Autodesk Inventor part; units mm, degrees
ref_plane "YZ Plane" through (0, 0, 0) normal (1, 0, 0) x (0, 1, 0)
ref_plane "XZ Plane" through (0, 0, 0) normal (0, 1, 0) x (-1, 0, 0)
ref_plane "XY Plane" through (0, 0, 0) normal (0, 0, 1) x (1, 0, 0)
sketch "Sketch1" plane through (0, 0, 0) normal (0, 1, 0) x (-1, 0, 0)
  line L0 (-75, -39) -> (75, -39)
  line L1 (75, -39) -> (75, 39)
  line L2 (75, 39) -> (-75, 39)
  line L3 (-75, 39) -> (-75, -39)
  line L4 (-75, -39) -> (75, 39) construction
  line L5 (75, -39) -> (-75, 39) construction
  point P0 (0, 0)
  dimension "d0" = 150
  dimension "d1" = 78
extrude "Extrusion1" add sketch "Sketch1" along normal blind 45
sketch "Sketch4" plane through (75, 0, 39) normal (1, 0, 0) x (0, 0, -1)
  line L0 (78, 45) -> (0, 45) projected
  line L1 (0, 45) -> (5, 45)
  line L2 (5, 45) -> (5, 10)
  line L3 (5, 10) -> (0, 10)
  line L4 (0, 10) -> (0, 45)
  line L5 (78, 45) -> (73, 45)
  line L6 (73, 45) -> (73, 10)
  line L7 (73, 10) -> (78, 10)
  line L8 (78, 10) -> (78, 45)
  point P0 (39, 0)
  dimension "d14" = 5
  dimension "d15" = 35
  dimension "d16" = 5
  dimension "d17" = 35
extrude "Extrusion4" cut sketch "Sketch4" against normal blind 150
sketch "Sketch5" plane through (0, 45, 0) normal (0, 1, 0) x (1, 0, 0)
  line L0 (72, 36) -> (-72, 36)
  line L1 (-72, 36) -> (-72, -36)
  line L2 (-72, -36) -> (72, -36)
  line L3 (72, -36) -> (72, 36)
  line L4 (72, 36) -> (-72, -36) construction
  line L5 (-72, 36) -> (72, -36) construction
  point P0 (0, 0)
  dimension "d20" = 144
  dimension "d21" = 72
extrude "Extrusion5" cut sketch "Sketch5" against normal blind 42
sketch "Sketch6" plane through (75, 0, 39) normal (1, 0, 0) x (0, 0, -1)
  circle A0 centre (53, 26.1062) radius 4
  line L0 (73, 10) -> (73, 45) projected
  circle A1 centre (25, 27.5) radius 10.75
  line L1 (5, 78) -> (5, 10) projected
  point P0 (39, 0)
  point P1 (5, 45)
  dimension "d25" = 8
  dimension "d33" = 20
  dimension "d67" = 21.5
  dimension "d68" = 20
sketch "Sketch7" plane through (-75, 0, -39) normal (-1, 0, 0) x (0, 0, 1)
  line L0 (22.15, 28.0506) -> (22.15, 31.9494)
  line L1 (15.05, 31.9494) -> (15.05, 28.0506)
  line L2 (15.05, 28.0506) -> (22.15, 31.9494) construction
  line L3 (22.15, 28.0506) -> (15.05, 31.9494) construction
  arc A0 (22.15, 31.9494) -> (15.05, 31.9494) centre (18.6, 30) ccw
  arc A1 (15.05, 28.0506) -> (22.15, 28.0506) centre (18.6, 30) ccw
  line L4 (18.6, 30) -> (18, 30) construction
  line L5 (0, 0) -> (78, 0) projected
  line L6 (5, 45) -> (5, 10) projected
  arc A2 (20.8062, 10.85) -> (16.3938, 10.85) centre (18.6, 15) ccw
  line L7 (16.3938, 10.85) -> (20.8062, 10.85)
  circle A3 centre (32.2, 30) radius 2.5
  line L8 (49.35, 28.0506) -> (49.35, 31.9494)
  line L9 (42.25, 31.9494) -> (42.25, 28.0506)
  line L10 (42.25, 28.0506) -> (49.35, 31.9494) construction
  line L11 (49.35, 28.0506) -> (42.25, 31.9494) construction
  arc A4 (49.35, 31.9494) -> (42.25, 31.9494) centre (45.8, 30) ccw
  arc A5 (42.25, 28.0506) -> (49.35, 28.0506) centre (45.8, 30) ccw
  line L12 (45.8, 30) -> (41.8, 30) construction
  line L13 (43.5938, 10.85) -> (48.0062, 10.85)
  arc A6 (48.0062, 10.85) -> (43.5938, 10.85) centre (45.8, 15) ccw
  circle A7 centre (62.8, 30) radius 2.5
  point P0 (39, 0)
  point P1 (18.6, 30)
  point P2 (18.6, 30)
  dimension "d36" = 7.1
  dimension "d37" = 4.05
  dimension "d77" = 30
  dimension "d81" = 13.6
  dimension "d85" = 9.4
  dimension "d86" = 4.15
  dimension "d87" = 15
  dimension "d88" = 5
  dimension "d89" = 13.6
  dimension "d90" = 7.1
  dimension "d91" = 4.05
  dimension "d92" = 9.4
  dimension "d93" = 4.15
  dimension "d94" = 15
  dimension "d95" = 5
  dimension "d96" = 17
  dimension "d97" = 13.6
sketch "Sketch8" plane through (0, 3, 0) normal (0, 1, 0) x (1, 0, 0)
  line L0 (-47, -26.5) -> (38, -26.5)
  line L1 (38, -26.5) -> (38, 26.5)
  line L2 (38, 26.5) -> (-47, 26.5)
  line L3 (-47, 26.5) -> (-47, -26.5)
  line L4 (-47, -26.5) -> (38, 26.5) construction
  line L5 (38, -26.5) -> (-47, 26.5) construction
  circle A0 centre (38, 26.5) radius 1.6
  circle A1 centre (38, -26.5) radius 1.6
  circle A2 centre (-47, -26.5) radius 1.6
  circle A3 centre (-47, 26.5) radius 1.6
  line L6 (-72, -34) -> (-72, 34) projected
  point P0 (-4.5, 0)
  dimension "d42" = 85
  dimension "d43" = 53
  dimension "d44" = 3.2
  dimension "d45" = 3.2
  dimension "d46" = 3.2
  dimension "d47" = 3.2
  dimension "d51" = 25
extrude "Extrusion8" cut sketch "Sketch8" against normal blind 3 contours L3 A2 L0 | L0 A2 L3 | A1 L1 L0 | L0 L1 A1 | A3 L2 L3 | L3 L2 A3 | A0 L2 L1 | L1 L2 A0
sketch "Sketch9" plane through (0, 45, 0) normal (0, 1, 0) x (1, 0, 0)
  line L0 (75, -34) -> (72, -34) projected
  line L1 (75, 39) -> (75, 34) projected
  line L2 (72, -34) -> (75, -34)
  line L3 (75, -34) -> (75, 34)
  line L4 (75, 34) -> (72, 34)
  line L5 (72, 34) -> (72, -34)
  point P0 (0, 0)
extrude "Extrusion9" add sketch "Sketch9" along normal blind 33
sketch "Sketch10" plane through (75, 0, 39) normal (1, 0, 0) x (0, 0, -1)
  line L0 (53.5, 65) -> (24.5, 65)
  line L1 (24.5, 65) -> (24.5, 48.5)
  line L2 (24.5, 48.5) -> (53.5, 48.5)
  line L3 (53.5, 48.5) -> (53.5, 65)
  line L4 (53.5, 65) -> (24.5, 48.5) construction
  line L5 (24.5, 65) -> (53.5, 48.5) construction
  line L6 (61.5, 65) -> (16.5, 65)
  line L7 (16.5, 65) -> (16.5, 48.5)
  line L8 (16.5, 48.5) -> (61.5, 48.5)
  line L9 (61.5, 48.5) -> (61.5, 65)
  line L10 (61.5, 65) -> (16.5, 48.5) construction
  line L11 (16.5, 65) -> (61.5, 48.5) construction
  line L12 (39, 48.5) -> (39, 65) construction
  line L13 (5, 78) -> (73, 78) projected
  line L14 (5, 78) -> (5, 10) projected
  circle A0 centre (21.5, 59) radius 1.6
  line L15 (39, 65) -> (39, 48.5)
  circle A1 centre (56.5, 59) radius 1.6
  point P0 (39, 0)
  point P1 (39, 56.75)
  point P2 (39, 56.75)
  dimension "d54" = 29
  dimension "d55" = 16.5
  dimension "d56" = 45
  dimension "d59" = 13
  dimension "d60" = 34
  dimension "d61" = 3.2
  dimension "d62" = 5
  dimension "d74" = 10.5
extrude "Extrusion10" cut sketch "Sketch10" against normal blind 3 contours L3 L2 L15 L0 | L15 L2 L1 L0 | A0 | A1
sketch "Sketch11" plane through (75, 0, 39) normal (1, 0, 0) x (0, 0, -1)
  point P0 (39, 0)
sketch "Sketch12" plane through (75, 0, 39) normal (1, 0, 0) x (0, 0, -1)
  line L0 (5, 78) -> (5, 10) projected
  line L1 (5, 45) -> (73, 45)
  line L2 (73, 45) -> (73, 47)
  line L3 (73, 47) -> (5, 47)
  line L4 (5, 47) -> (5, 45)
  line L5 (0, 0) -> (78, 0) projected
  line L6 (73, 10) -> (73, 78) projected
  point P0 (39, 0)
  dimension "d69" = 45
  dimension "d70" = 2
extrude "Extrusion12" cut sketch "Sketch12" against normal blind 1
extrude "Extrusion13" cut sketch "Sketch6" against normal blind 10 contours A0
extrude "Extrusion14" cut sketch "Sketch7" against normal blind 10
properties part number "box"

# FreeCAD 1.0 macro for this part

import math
import FreeCAD as App
import Part
import Sketcher


def add_polygon(sketch, points):
    """Adds a closed chain of lines whose ends are joined by coincident constraints."""
    first, n = sketch.GeometryCount, len(points)
    for a, b in zip(points, points[1:] + points[:1]):
        sketch.addGeometry(Part.LineSegment(App.Vector(*a, 0), App.Vector(*b, 0)), False)
    for i in range(n):
        sketch.addConstraint(Sketcher.Constraint("Coincident", first + i, 2, first + (i + 1) % n, 1))

doc = App.newDocument("Part")
body = doc.addObject("PartDesign::Body", "Body")

sketch1 = body.newObject("Sketcher::SketchObject", "Sketch")
sketch1.AttachmentSupport = (doc.getObject("XZ_Plane"), [""])
sketch1.MapMode = "FlatFace"
add_polygon(sketch1, [(75, 39), (75, -39), (-75, -39), (-75, 39)])
sketch1.addConstraint(Sketcher.Constraint("Vertical", 0))
sketch1.addConstraint(Sketcher.Constraint("Horizontal", 1))
sketch1.addConstraint(Sketcher.Constraint("Vertical", 2))
sketch1.addConstraint(Sketcher.Constraint("Horizontal", 3))
sketch1.addConstraint(Sketcher.Constraint("Symmetric", 0, 2, 2, 2, -1, 1))
sketch1.addConstraint(Sketcher.Constraint("DistanceX", 1, 2, 1, 1, 150.0))
sketch1.addConstraint(Sketcher.Constraint("DistanceY", 0, 2, 0, 1, 78.0))
pad1 = body.newObject("PartDesign::Pad", "Pad")
pad1.Profile = sketch1
pad1.Length = 45
pad1.Reversed = True

sketch2 = body.newObject("Sketcher::SketchObject", "Sketch001")
sketch2.AttachmentSupport = (doc.getObject("YZ_Plane"), [""])
sketch2.MapMode = "FlatFace"
sketch2.AttachmentOffset = App.Placement(App.Vector(0, 0, 75), App.Rotation())
add_polygon(sketch2, [(10, -39), (45, -39), (45, -34), (10, -34)])
add_polygon(sketch2, [(10, 34), (45, 34), (45, 39), (10, 39)])
sketch2.addConstraint(Sketcher.Constraint("Horizontal", 0))
sketch2.addConstraint(Sketcher.Constraint("Vertical", 1))
sketch2.addConstraint(Sketcher.Constraint("Horizontal", 2))
sketch2.addConstraint(Sketcher.Constraint("Vertical", 3))
sketch2.addConstraint(Sketcher.Constraint("Horizontal", 4))
sketch2.addConstraint(Sketcher.Constraint("Vertical", 5))
sketch2.addConstraint(Sketcher.Constraint("Horizontal", 6))
sketch2.addConstraint(Sketcher.Constraint("Vertical", 7))
sketch2.addConstraint(Sketcher.Constraint("Symmetric", 1, 2, 4, 2, -1))
sketch2.addConstraint(Sketcher.Constraint("Symmetric", 3, 2, 6, 2, -1))
sketch2.addConstraint(Sketcher.Constraint("DistanceX", 0, 1, 0, 2, 35.0))
sketch2.addConstraint(Sketcher.Constraint("DistanceY", 1, 1, 1, 2, 5.0))
sketch2.addConstraint(Sketcher.Constraint("DistanceX", -1, 1, 0, 2, 45.0))
sketch2.addConstraint(Sketcher.Constraint("DistanceY", 0, 2, -1, 1, 39.0))
pocket1 = body.newObject("PartDesign::Pocket", "Pocket")
pocket1.Profile = sketch2
pocket1.Length = 150

sketch3 = body.newObject("Sketcher::SketchObject", "Sketch002")
sketch3.AttachmentSupport = (doc.getObject("XZ_Plane"), [""])
sketch3.MapMode = "FlatFace"
sketch3.AttachmentOffset = App.Placement(App.Vector(0, 0, -45), App.Rotation())
add_polygon(sketch3, [(72, 36), (72, -36), (-72, -36), (-72, 36)])
sketch3.addConstraint(Sketcher.Constraint("Vertical", 0))
sketch3.addConstraint(Sketcher.Constraint("Horizontal", 1))
sketch3.addConstraint(Sketcher.Constraint("Vertical", 2))
sketch3.addConstraint(Sketcher.Constraint("Horizontal", 3))
sketch3.addConstraint(Sketcher.Constraint("Symmetric", 0, 2, 2, 2, -1, 1))
sketch3.addConstraint(Sketcher.Constraint("DistanceX", 1, 2, 1, 1, 144.0))
sketch3.addConstraint(Sketcher.Constraint("DistanceY", 0, 2, 0, 1, 72.0))
pocket2 = body.newObject("PartDesign::Pocket", "Pocket001")
pocket2.Profile = sketch3
pocket2.Length = 42
pocket2.Reversed = True

sketch4 = body.newObject("Sketcher::SketchObject", "Sketch003")
sketch4.AttachmentSupport = (doc.getObject("XZ_Plane"), [""])
sketch4.MapMode = "FlatFace"
sketch4.AttachmentOffset = App.Placement(App.Vector(0, 0, -3), App.Rotation())
sketch4.addGeometry(Part.Circle(App.Vector(-47, 26.5, 0), App.Vector(0, 0, 1), 1.6), False)
sketch4.addGeometry(Part.Circle(App.Vector(38, 26.5, 0), App.Vector(0, 0, 1), 1.6), False)
sketch4.addGeometry(Part.Circle(App.Vector(-47, -26.5, 0), App.Vector(0, 0, 1), 1.6), False)
sketch4.addGeometry(Part.Circle(App.Vector(38, -26.5, 0), App.Vector(0, 0, 1), 1.6), False)
sketch4.addConstraint(Sketcher.Constraint("Equal", 0, 1))
sketch4.addConstraint(Sketcher.Constraint("Equal", 1, 2))
sketch4.addConstraint(Sketcher.Constraint("Equal", 2, 3))
sketch4.addConstraint(Sketcher.Constraint("Symmetric", 0, 3, 2, 3, -1))
sketch4.addConstraint(Sketcher.Constraint("Symmetric", 1, 3, 3, 3, -1))
sketch4.addConstraint(Sketcher.Constraint("Horizontal", 0, 3, 1, 3))
sketch4.addConstraint(Sketcher.Constraint("Diameter", 0, 3.2))
sketch4.addConstraint(Sketcher.Constraint("DistanceX", 0, 3, 1, 3, 85.0))
sketch4.addConstraint(Sketcher.Constraint("DistanceY", 2, 3, 0, 3, 53.0))
sketch4.addConstraint(Sketcher.Constraint("DistanceX", 0, 3, -1, 1, 47.0))
pocket3 = body.newObject("PartDesign::Pocket", "Pocket002")
pocket3.Profile = sketch4
pocket3.Length = 3
pocket3.Reversed = True

sketch5 = body.newObject("Sketcher::SketchObject", "Sketch004")
sketch5.AttachmentSupport = (doc.getObject("XZ_Plane"), [""])
sketch5.MapMode = "FlatFace"
sketch5.AttachmentOffset = App.Placement(App.Vector(0, 0, -45), App.Rotation())
add_polygon(sketch5, [(72, 34), (75, 34), (75, -34), (72, -34)])
sketch5.addConstraint(Sketcher.Constraint("Horizontal", 0))
sketch5.addConstraint(Sketcher.Constraint("Vertical", 1))
sketch5.addConstraint(Sketcher.Constraint("Horizontal", 2))
sketch5.addConstraint(Sketcher.Constraint("Vertical", 3))
sketch5.addConstraint(Sketcher.Constraint("DistanceX", 0, 1, 0, 2, 3.0))
sketch5.addConstraint(Sketcher.Constraint("DistanceY", 1, 2, 1, 1, 68.0))
sketch5.addConstraint(Sketcher.Constraint("DistanceX", -1, 1, 0, 2, 75.0))
sketch5.addConstraint(Sketcher.Constraint("DistanceY", -1, 1, 0, 2, 34.0))
pad2 = body.newObject("PartDesign::Pad", "Pad001")
pad2.Profile = sketch5
pad2.Length = 33
pad2.Reversed = True

sketch6 = body.newObject("Sketcher::SketchObject", "Sketch005")
sketch6.AttachmentSupport = (doc.getObject("YZ_Plane"), [""])
sketch6.MapMode = "FlatFace"
sketch6.AttachmentOffset = App.Placement(App.Vector(0, 0, 75), App.Rotation())
add_polygon(sketch6, [(48.5, -14.5), (65, -14.5), (65, 14.5), (48.5, 14.5)])
sketch6.addGeometry(Part.Circle(App.Vector(59, 17.5, 0), App.Vector(0, 0, 1), 1.6), False)
sketch6.addGeometry(Part.Circle(App.Vector(59, -17.5, 0), App.Vector(0, 0, 1), 1.6), False)
sketch6.addConstraint(Sketcher.Constraint("Horizontal", 0))
sketch6.addConstraint(Sketcher.Constraint("Vertical", 1))
sketch6.addConstraint(Sketcher.Constraint("Horizontal", 2))
sketch6.addConstraint(Sketcher.Constraint("Vertical", 3))
sketch6.addConstraint(Sketcher.Constraint("Equal", 4, 5))
sketch6.addConstraint(Sketcher.Constraint("Symmetric", 4, 3, 5, 3, -1))
sketch6.addConstraint(Sketcher.Constraint("Diameter", 4, 3.2))
sketch6.addConstraint(Sketcher.Constraint("DistanceY", 1, 1, 1, 2, 29.0))
sketch6.addConstraint(Sketcher.Constraint("DistanceX", 0, 1, 0, 2, 16.5))
sketch6.addConstraint(Sketcher.Constraint("DistanceX", 2, 2, 4, 3, 10.5))
sketch6.addConstraint(Sketcher.Constraint("DistanceX", -1, 1, 4, 3, 59.0))
sketch6.addConstraint(Sketcher.Constraint("DistanceY", 5, 3, 4, 3, 35.0))
sketch6.addConstraint(Sketcher.Constraint("DistanceY", 5, 3, 0, 2, 3.0))
pocket4 = body.newObject("PartDesign::Pocket", "Pocket003")
pocket4.Profile = sketch6
pocket4.Length = 3

sketch7 = body.newObject("Sketcher::SketchObject", "Sketch006")
sketch7.AttachmentSupport = (doc.getObject("YZ_Plane"), [""])
sketch7.MapMode = "FlatFace"
sketch7.AttachmentOffset = App.Placement(App.Vector(0, 0, 75), App.Rotation())
add_polygon(sketch7, [(47, -34), (47, 34), (45, 34), (45, -34)])
sketch7.addConstraint(Sketcher.Constraint("Vertical", 0))
sketch7.addConstraint(Sketcher.Constraint("Horizontal", 1))
sketch7.addConstraint(Sketcher.Constraint("Vertical", 2))
sketch7.addConstraint(Sketcher.Constraint("Horizontal", 3))
sketch7.addConstraint(Sketcher.Constraint("DistanceX", 1, 2, 1, 1, 2.0))
sketch7.addConstraint(Sketcher.Constraint("DistanceX", -1, 1, 1, 2, 45.0))
sketch7.addConstraint(Sketcher.Constraint("DistanceY", 0, 1, 0, 2, 68.0))
sketch7.addConstraint(Sketcher.Constraint("DistanceY", -1, 1, 0, 2, 34.0))
pocket5 = body.newObject("PartDesign::Pocket", "Pocket004")
pocket5.Profile = sketch7
pocket5.Length = 1

sketch8 = body.newObject("Sketcher::SketchObject", "Sketch007")
sketch8.AttachmentSupport = (doc.getObject("YZ_Plane"), [""])
sketch8.MapMode = "FlatFace"
sketch8.AttachmentOffset = App.Placement(App.Vector(0, 0, 75), App.Rotation())
sketch8.addGeometry(Part.Circle(App.Vector(26.1, -14, 0), App.Vector(0, 0, 1), 4), False)
sketch8.addConstraint(Sketcher.Constraint("Diameter", 0, 8.0))
sketch8.addConstraint(Sketcher.Constraint("DistanceY", 0, 3, -1, 1, 14.0))
sketch8.addConstraint(Sketcher.Constraint("DistanceX", -1, 1, 0, 3, 26.1062))
pocket6 = body.newObject("PartDesign::Pocket", "Pocket005")
pocket6.Profile = sketch8
pocket6.Length = 10

sketch9 = body.newObject("Sketcher::SketchObject", "Sketch008")
sketch9.AttachmentSupport = (doc.getObject("YZ_Plane"), [""])
sketch9.MapMode = "FlatFace"
sketch9.AttachmentOffset = App.Placement(App.Vector(0, 0, -75), App.Rotation())
sketch9.addGeometry(Part.ArcOfCircle(Part.Circle(App.Vector(30, -20.4, 0), App.Vector(0, 0, 1), 4.1), math.radians(119), math.radians(241)), False)
sketch9.addGeometry(Part.LineSegment(App.Vector(28.1, -16.9, 0), App.Vector(31.9, -16.9, 0)), False)
sketch9.addGeometry(Part.ArcOfCircle(Part.Circle(App.Vector(30, -20.4, 0), App.Vector(0, 0, 1), 4.1), math.radians(-61), math.radians(61)), False)
sketch9.addGeometry(Part.LineSegment(App.Vector(31.9, -23.9, 0), App.Vector(28.1, -23.9, 0)), False)
sketch9.addGeometry(Part.LineSegment(App.Vector(10.8, -22.6, 0), App.Vector(10.8, -18.2, 0)), False)
sketch9.addGeometry(Part.ArcOfCircle(Part.Circle(App.Vector(15, -20.4, 0), App.Vector(0, 0, 1), 4.7), math.radians(-152), math.radians(152)), False)
sketch9.addGeometry(Part.Circle(App.Vector(30, -6.8, 0), App.Vector(0, 0, 1), 2.5), False)
sketch9.addGeometry(Part.ArcOfCircle(Part.Circle(App.Vector(30, 6.8, 0), App.Vector(0, 0, 1), 4.1), math.radians(119), math.radians(241)), False)
sketch9.addGeometry(Part.LineSegment(App.Vector(28.1, 10.3, 0), App.Vector(31.9, 10.3, 0)), False)
sketch9.addGeometry(Part.ArcOfCircle(Part.Circle(App.Vector(30, 6.8, 0), App.Vector(0, 0, 1), 4.1), math.radians(-61), math.radians(61)), False)
sketch9.addGeometry(Part.LineSegment(App.Vector(31.9, 3.2, 0), App.Vector(28.1, 3.2, 0)), False)
sketch9.addGeometry(Part.ArcOfCircle(Part.Circle(App.Vector(15, 6.8, 0), App.Vector(0, 0, 1), 4.7), math.radians(-152), math.radians(152)), False)
sketch9.addGeometry(Part.LineSegment(App.Vector(10.8, 4.6, 0), App.Vector(10.8, 9, 0)), False)
sketch9.addGeometry(Part.Circle(App.Vector(30, 23.8, 0), App.Vector(0, 0, 1), 2.5), False)
sketch9.addConstraint(Sketcher.Constraint("Coincident", 0, 1, 1, 1))
sketch9.addConstraint(Sketcher.Constraint("Coincident", 1, 2, 2, 2))
sketch9.addConstraint(Sketcher.Constraint("Coincident", 2, 1, 3, 1))
sketch9.addConstraint(Sketcher.Constraint("Coincident", 3, 2, 0, 2))
sketch9.addConstraint(Sketcher.Constraint("Coincident", 4, 1, 5, 1))
sketch9.addConstraint(Sketcher.Constraint("Coincident", 5, 2, 4, 2))
sketch9.addConstraint(Sketcher.Constraint("Coincident", 7, 1, 8, 1))
sketch9.addConstraint(Sketcher.Constraint("Coincident", 8, 2, 9, 2))
sketch9.addConstraint(Sketcher.Constraint("Coincident", 9, 1, 10, 1))
sketch9.addConstraint(Sketcher.Constraint("Coincident", 10, 2, 7, 2))
sketch9.addConstraint(Sketcher.Constraint("Coincident", 11, 1, 12, 1))
sketch9.addConstraint(Sketcher.Constraint("Coincident", 12, 2, 11, 2))
sketch9.addConstraint(Sketcher.Constraint("Horizontal", 1))
sketch9.addConstraint(Sketcher.Constraint("Horizontal", 3))
sketch9.addConstraint(Sketcher.Constraint("Vertical", 4))
sketch9.addConstraint(Sketcher.Constraint("Horizontal", 8))
sketch9.addConstraint(Sketcher.Constraint("Horizontal", 10))
sketch9.addConstraint(Sketcher.Constraint("Vertical", 12))
sketch9.addConstraint(Sketcher.Constraint("Coincident", 2, 3, 0, 3))
sketch9.addConstraint(Sketcher.Constraint("Coincident", 9, 3, 7, 3))
sketch9.addConstraint(Sketcher.Constraint("Equal", 0, 2))
sketch9.addConstraint(Sketcher.Constraint("Equal", 2, 7))
sketch9.addConstraint(Sketcher.Constraint("Equal", 7, 9))
sketch9.addConstraint(Sketcher.Constraint("Equal", 5, 11))
sketch9.addConstraint(Sketcher.Constraint("Equal", 6, 13))
sketch9.addConstraint(Sketcher.Constraint("Symmetric", 6, 3, 7, 3, -1))
sketch9.addConstraint(Sketcher.Constraint("Horizontal", 2, 3, 5, 3))
sketch9.addConstraint(Sketcher.Constraint("Horizontal", 9, 3, 11, 3))
sketch9.addConstraint(Sketcher.Constraint("Vertical", 2, 3, 6, 3))
sketch9.addConstraint(Sketcher.Constraint("Vertical", 5, 3, 11, 3))
sketch9.addConstraint(Sketcher.Constraint("Vertical", 9, 3, 13, 3))
sketch9.addConstraint(Sketcher.Constraint("Vertical", 1, 2, 2, 1))
sketch9.addConstraint(Sketcher.Constraint("Vertical", 3, 2, 7, 1))
sketch9.addConstraint(Sketcher.Constraint("Vertical", 8, 2, 9, 1))
sketch9.addConstraint(Sketcher.Constraint("Vertical", 5, 2, 11, 1))
sketch9.addConstraint(Sketcher.Constraint("Diameter", 6, 5.0))
sketch9.addConstraint(Sketcher.Constraint("Radius", 5, 4.7))
sketch9.addConstraint(Sketcher.Constraint("Radius", 0, 4.05))
sketch9.addConstraint(Sketcher.Constraint("DistanceX", -1, 1, 0, 3, 30.0))
sketch9.addConstraint(Sketcher.Constraint("DistanceX", -1, 1, 5, 3, 15.0))
sketch9.addConstraint(Sketcher.Constraint("DistanceY", 7, 3, 13, 3, 17.0))
sketch9.addConstraint(Sketcher.Constraint("DistanceY", 0, 3, 6, 3, 13.6))
sketch9.addConstraint(Sketcher.Constraint("DistanceY", 6, 3, 7, 3, 13.6))
sketch9.addConstraint(Sketcher.Constraint("DistanceY", 2, 1, 1, 2, 7.1))
sketch9.addConstraint(Sketcher.Constraint("DistanceX", 4, 1, 5, 3, 4.15))
pocket7 = body.newObject("PartDesign::Pocket", "Pocket006")
pocket7.Profile = sketch9
pocket7.Length = 10
pocket7.Reversed = True

doc.recompute()
